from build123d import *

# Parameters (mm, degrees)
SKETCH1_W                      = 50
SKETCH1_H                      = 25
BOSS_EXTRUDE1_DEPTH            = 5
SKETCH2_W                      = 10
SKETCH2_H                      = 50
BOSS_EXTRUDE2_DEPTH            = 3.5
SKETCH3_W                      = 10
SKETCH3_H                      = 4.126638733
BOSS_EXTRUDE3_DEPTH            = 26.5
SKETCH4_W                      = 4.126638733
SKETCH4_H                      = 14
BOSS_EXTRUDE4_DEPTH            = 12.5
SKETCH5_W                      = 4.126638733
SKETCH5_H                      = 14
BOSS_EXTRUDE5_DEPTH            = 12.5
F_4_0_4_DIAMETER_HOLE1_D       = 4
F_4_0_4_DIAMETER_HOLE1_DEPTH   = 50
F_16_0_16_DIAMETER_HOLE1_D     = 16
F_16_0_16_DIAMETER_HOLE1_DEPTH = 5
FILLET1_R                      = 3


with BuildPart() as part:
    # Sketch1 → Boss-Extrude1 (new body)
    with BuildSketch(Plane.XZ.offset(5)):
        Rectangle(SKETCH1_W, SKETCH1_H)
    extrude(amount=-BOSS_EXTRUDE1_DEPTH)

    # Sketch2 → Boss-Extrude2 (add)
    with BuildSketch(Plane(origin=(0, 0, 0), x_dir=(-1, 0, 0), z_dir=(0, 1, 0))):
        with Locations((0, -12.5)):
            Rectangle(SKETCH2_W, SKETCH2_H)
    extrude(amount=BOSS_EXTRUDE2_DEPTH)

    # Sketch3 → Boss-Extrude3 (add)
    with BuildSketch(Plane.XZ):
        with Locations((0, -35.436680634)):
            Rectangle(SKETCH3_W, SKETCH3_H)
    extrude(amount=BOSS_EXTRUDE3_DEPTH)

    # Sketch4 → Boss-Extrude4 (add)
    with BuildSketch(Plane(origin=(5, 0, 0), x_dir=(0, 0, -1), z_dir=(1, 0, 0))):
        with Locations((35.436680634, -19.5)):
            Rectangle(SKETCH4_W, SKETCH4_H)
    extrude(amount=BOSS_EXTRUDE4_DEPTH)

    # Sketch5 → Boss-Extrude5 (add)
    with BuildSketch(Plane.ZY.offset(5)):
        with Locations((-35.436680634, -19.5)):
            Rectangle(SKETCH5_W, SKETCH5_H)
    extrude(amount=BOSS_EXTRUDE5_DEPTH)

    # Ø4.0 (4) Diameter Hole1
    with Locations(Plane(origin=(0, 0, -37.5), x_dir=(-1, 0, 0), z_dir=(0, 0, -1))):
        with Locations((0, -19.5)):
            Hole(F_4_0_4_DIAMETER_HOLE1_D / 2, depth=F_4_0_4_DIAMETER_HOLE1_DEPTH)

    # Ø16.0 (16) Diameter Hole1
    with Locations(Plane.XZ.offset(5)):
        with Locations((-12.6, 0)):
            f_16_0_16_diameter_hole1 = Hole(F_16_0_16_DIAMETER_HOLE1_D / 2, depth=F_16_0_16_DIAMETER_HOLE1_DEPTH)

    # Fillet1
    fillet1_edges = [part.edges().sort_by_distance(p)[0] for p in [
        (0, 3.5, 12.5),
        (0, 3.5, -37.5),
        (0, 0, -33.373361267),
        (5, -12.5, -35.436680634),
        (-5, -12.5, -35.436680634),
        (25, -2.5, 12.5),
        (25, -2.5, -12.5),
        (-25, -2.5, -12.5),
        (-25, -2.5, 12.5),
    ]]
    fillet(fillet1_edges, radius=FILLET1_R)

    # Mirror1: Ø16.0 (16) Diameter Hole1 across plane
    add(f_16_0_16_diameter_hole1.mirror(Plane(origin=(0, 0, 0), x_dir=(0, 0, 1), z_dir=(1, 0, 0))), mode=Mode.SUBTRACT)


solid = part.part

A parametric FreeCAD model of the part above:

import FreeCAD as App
import Part
import Sketcher
Q = App.Units.Quantity


def edges_at(feature, points):
    """Names of the edges that pass closest to the given points."""
    edges = feature.Shape.Edges
    near = lambda p: min(range(len(edges)), key=lambda i: edges[i].distToShape(Part.Vertex(*p))[0])
    return sorted({f"Edge{near(p) + 1}" for p in points})


def add_polygon(sketch, points):
    """Adds a closed chain of lines whose ends are joined by coincident constraints."""
    first, n = sketch.GeometryCount, len(points)
    for a, b in zip(points, points[1:] + points[:1]):
        sketch.addGeometry(Part.LineSegment(App.Vector(*a, 0), App.Vector(*b, 0)), False)
    for i in range(n):
        sketch.addConstraint(Sketcher.Constraint("Coincident", first + i, 2, first + (i + 1) % n, 1))

doc = App.newDocument("Part")
params = doc.addObject("Spreadsheet::Sheet", "Params")
for row, (alias, value) in enumerate([
    ("sketch1_width", "50 mm"),
    ("sketch1_height", "25 mm"),
    ("pad1_length", "5 mm"),
    ("sketch2_width", "10 mm"),
    ("sketch2_height", "50 mm"),
    ("pad2_length", "3.5 mm"),
    ("sketch3_width", "10 mm"),
    ("pad3_length", "26.5 mm"),
    ("sketch4_width", "14 mm"),
    ("pad4_length", "12.5 mm"),
    ("sketch5_width", "14 mm"),
    ("pad5_length", "12.5 mm"),
    ("sketch6_diameter", "4 mm"),
    ("hole_diameter", "4 mm"),
    ("hole_depth", "50 mm"),
    ("sketch7_diameter", "16 mm"),
    ("hole2_diameter", "16 mm"),
    ("hole2_depth", "5 mm"),
    ("fillet_radius", "3 mm"),
], start=1):
    params.set(f"A{row}", alias)
    params.set(f"B{row}", "=" + value)
    params.setAlias(f"B{row}", alias)

body = doc.addObject("PartDesign::Body", "Body")

sketch1 = doc.addObject("Sketcher::SketchObject", "Sketch")
body.addObject(sketch1)
sketch1.AttachmentSupport = (doc.XZ_Plane, [""])
sketch1.MapMode = "FlatFace"
sketch1.AttachmentOffset = App.Placement(App.Vector(0, 0, 5), App.Rotation())
add_polygon(sketch1, [(-25, 12.5), (-25, -12.5), (25, -12.5), (25, 12.5)])
sketch1.addConstraint(Sketcher.Constraint("Vertical", 0))
sketch1.addConstraint(Sketcher.Constraint("Horizontal", 1))
sketch1.addConstraint(Sketcher.Constraint("Vertical", 2))
sketch1.addConstraint(Sketcher.Constraint("Horizontal", 3))
sketch1.addConstraint(Sketcher.Constraint("Symmetric", 0, 2, 2, 2, -1, 1))
sketch1.addConstraint(Sketcher.Constraint("DistanceX", 1, 1, 1, 2, Q("50 mm")))
sketch1.addConstraint(Sketcher.Constraint("DistanceY", 0, 2, 0, 1, Q("25 mm")))
sketch1.setExpression("Constraints[9]", "Params.sketch1_width")
sketch1.setExpression("Constraints[10]", "Params.sketch1_height")
pad1 = doc.addObject("PartDesign::Pad", "Pad")
body.addObject(pad1)
pad1.Profile = sketch1
pad1.setExpression("Length", "Params.pad1_length")
pad1.Reversed = True

sketch2 = doc.addObject("Sketcher::SketchObject", "Sketch001")
body.addObject(sketch2)
sketch2.AttachmentSupport = (doc.XZ_Plane, [""])
sketch2.MapMode = "FlatFace"
add_polygon(sketch2, [(5, 12.5), (5, -37.5), (-5, -37.5), (-5, 12.5)])
sketch2.addConstraint(Sketcher.Constraint("Vertical", 0))
sketch2.addConstraint(Sketcher.Constraint("Horizontal", 1))
sketch2.addConstraint(Sketcher.Constraint("Vertical", 2))
sketch2.addConstraint(Sketcher.Constraint("Horizontal", 3))
sketch2.addConstraint(Sketcher.Constraint("DistanceX", 1, 2, 1, 1, Q("10 mm")))
sketch2.addConstraint(Sketcher.Constraint("DistanceY", 0, 2, 0, 1, Q("50 mm")))
sketch2.addConstraint(Sketcher.Constraint("DistanceX", -1, 1, 0, 2, Q("5 mm")))
sketch2.addConstraint(Sketcher.Constraint("DistanceY", 0, 2, -1, 1, Q("37.5 mm")))
sketch2.setExpression("Constraints[8]", "Params.sketch2_width")
sketch2.setExpression("Constraints[9]", "Params.sketch2_height")
pad2 = doc.addObject("PartDesign::Pad", "Pad001")
body.addObject(pad2)
pad2.Profile = sketch2
pad2.setExpression("Length", "Params.pad2_length")
pad2.Reversed = True

sketch3 = doc.addObject("Sketcher::SketchObject", "Sketch002")
body.addObject(sketch3)
sketch3.AttachmentSupport = (doc.XZ_Plane, [""])
sketch3.MapMode = "FlatFace"
add_polygon(sketch3, [(-5, -33.373361), (-5, -37.5), (5, -37.5), (5, -33.373361)])
sketch3.addConstraint(Sketcher.Constraint("Vertical", 0))
sketch3.addConstraint(Sketcher.Constraint("Horizontal", 1))
sketch3.addConstraint(Sketcher.Constraint("Vertical", 2))
sketch3.addConstraint(Sketcher.Constraint("Horizontal", 3))
sketch3.addConstraint(Sketcher.Constraint("DistanceX", 1, 1, 1, 2, Q("10 mm")))
sketch3.addConstraint(Sketcher.Constraint("DistanceX", 0, 2, -1, 1, Q("5 mm")))
sketch3.addConstraint(Sketcher.Constraint("DistanceY", 0, 2, -1, 1, Q("37.5 mm")))
sketch3.addConstraint(Sketcher.Constraint("DistanceY", 0, 2, 0, 1, Q("4.126639 mm")))
sketch3.setExpression("Constraints[8]", "Params.sketch3_width")
pad3 = doc.addObject("PartDesign::Pad", "Pad002")
body.addObject(pad3)
pad3.Profile = sketch3
pad3.setExpression("Length", "Params.pad3_length")

sketch4 = doc.addObject("Sketcher::SketchObject", "Sketch003")
body.addObject(sketch4)
sketch4.AttachmentSupport = (doc.YZ_Plane, [""])
sketch4.MapMode = "FlatFace"
sketch4.AttachmentOffset = App.Placement(App.Vector(0, 0, 5), App.Rotation())
add_polygon(sketch4, [(-12.5, -33.373361), (-26.5, -33.373361), (-26.5, -37.5), (-12.5, -37.5)])
sketch4.addConstraint(Sketcher.Constraint("Horizontal", 0))
sketch4.addConstraint(Sketcher.Constraint("Vertical", 1))
sketch4.addConstraint(Sketcher.Constraint("Horizontal", 2))
sketch4.addConstraint(Sketcher.Constraint("Vertical", 3))
sketch4.addConstraint(Sketcher.Constraint("DistanceX", 0, 2, 0, 1, Q("14 mm")))
sketch4.addConstraint(Sketcher.Constraint("DistanceX", 0, 2, -1, 1, Q("26.5 mm")))
sketch4.addConstraint(Sketcher.Constraint("DistanceY", 1, 2, -1, 1, Q("37.5 mm")))
sketch4.addConstraint(Sketcher.Constraint("DistanceY", 1, 2, 1, 1, Q("4.126639 mm")))
sketch4.setExpression("Constraints[8]", "Params.sketch4_width")
pad4 = doc.addObject("PartDesign::Pad", "Pad003")
body.addObject(pad4)
pad4.Profile = sketch4
pad4.setExpression("Length", "Params.pad4_length")

sketch5 = doc.addObject("Sketcher::SketchObject", "Sketch004")
body.addObject(sketch5)
sketch5.AttachmentSupport = (doc.YZ_Plane, [""])
sketch5.MapMode = "FlatFace"
sketch5.AttachmentOffset = App.Placement(App.Vector(0, 0, -5), App.Rotation())
add_polygon(sketch5, [(-12.5, -37.5), (-26.5, -37.5), (-26.5, -33.373361), (-12.5, -33.373361)])
sketch5.addConstraint(Sketcher.Constraint("Horizontal", 0))
sketch5.addConstraint(Sketcher.Constraint("Vertical", 1))
sketch5.addConstraint(Sketcher.Constraint("Horizontal", 2))
sketch5.addConstraint(Sketcher.Constraint("Vertical", 3))
sketch5.addConstraint(Sketcher.Constraint("DistanceX", 0, 2, 0, 1, Q("14 mm")))
sketch5.addConstraint(Sketcher.Constraint("DistanceX", 0, 2, -1, 1, Q("26.5 mm")))
sketch5.addConstraint(Sketcher.Constraint("DistanceY", 0, 2, -1, 1, Q("37.5 mm")))
sketch5.addConstraint(Sketcher.Constraint("DistanceY", 1, 1, 1, 2, Q("4.126639 mm")))
sketch5.setExpression("Constraints[8]", "Params.sketch5_width")
pad5 = doc.addObject("PartDesign::Pad", "Pad004")
body.addObject(pad5)
pad5.Profile = sketch5
pad5.setExpression("Length", "Params.pad5_length")
pad5.Reversed = True

sketch6 = doc.addObject("Sketcher::SketchObject", "Sketch005")
body.addObject(sketch6)
sketch6.AttachmentSupport = (doc.XY_Plane, [""])
sketch6.MapMode = "FlatFace"
sketch6.AttachmentOffset = App.Placement(App.Vector(0, 0, -37.5), App.Rotation())
sketch6.addGeometry(Part.Circle(App.Vector(0, -19.5, 0), App.Vector(0, 0, 1), 2), False)
sketch6.addConstraint(Sketcher.Constraint("PointOnObject", 0, 3, -2))
sketch6.addConstraint(Sketcher.Constraint("Diameter", 0, Q("4 mm")))
sketch6.addConstraint(Sketcher.Constraint("DistanceY", 0, 3, -1, 1, Q("19.5 mm")))
sketch6.setExpression("Constraints[1]", "Params.sketch6_diameter")
doc.recompute()
hole = doc.addObject("PartDesign::Hole", "Hole")
body.addObject(hole)
hole.Profile = sketch6
hole.ThreadType = "None"
hole.setExpression("Diameter", "Params.hole_diameter")
hole.DepthType = "Dimension"
hole.setExpression("Depth", "Params.hole_depth")
hole.DrillPoint = "Flat"
hole.Reversed = True

sketch7 = doc.addObject("Sketcher::SketchObject", "Sketch006")
body.addObject(sketch7)
sketch7.AttachmentSupport = (doc.XZ_Plane, [""])
sketch7.MapMode = "FlatFace"
sketch7.AttachmentOffset = App.Placement(App.Vector(0, 0, 5), App.Rotation())
sketch7.addGeometry(Part.Circle(App.Vector(-12.6, 0, 0), App.Vector(0, 0, 1), 8), False)
sketch7.addConstraint(Sketcher.Constraint("PointOnObject", 0, 3, -1))
sketch7.addConstraint(Sketcher.Constraint("Diameter", 0, Q("16 mm")))
sketch7.addConstraint(Sketcher.Constraint("DistanceX", 0, 3, -1, 1, Q("12.6 mm")))
sketch7.setExpression("Constraints[1]", "Params.sketch7_diameter")
doc.recompute()
hole2 = doc.addObject("PartDesign::Hole", "Hole001")
body.addObject(hole2)
hole2.Profile = sketch7
hole2.ThreadType = "None"
hole2.setExpression("Diameter", "Params.hole2_diameter")
hole2.DepthType = "Dimension"
hole2.setExpression("Depth", "Params.hole2_depth")
hole2.DrillPoint = "Flat"
doc.recompute()

fillet = doc.addObject("PartDesign::Fillet", "Fillet")
body.addObject(fillet)
fillet.Base = (hole2, edges_at(hole2, [
    (0, 3.5, 12.5),
    (0, 3.5, -37.5),
    (0, 0, -33.373),
    (5, -12.5, -35.437),
    (-5, -12.5, -35.437),
    (25, -2.5, 12.5),
    (25, -2.5, -12.5),
    (-25, -2.5, -12.5),
    (-25, -2.5, 12.5),
]))
fillet.setExpression("Radius", "Params.fillet_radius")
doc.recompute()

mirrored = doc.addObject("PartDesign::Mirrored", "Mirrored")
body.addObject(mirrored)
mirrored.Originals = [hole2]
mirrored.MirrorPlane = (doc.YZ_Plane, [""])
body.Tip = mirrored

doc.recompute()
